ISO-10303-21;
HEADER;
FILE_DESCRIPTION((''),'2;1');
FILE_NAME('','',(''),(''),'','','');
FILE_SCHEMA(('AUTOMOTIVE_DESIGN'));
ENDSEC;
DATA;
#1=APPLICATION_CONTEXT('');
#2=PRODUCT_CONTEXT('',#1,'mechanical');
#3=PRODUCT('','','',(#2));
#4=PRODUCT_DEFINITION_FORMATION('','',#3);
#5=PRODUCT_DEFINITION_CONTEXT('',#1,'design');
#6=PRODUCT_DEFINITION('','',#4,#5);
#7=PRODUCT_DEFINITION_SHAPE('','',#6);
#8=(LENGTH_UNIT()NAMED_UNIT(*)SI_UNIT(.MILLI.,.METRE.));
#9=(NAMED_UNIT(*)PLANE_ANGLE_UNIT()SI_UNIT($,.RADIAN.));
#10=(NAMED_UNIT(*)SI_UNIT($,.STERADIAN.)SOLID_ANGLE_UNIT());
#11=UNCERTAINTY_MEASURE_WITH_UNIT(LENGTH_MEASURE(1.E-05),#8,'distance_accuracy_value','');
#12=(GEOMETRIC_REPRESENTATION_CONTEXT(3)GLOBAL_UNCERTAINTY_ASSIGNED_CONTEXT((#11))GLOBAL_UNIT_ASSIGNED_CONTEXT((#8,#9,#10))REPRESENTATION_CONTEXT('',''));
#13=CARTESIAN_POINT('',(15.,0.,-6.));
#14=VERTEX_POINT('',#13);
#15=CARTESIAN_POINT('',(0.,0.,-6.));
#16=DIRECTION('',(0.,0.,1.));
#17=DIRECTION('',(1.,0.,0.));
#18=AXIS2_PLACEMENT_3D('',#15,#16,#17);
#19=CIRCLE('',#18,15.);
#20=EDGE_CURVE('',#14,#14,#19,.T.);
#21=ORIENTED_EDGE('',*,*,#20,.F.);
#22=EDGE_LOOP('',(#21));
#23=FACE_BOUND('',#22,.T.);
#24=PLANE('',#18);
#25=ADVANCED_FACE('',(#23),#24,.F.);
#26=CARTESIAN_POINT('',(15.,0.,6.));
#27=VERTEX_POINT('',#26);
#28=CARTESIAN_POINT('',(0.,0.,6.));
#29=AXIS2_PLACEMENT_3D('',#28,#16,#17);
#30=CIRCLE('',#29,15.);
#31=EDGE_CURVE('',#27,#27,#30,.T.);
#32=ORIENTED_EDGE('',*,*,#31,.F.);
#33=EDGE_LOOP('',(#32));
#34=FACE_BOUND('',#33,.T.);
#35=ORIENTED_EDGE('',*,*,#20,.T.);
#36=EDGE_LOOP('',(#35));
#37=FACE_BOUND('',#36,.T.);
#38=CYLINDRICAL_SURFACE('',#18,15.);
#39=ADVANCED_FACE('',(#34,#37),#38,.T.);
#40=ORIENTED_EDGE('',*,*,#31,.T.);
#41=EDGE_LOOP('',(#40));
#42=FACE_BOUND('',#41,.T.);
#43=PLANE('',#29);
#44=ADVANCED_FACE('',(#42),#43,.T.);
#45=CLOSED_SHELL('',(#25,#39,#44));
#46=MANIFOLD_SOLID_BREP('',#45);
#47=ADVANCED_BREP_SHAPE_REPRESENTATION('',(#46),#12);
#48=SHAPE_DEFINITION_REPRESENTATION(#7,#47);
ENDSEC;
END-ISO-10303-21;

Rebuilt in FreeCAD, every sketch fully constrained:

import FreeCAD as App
import Part
import Sketcher
from FreeCAD import Vector

doc = App.newDocument("Part")
body = doc.addObject("PartDesign::Body", "Body")

# Sketch on XY plane
sketch1 = doc.addObject("Sketcher::SketchObject", "Sketch")
body.addObject(sketch1)
sketch1.AttachmentSupport = (doc.XY_Plane, [""])
sketch1.MapMode = "FlatFace"
sketch1.AttachmentOffset = App.Placement(Vector(0, 0, 6), App.Rotation())
sketch1.addGeometry(Part.Circle(Vector(0, 0, 0), Vector(0, 0, 1), 15), False)
sketch1.addConstraint([
    Sketcher.Constraint("Coincident", 0, 3, -1, 1),
    Sketcher.Constraint("Diameter", 0, 30.0),
])
pad1 = doc.addObject("PartDesign::Pad", "Pad")
body.addObject(pad1)
pad1.Profile = sketch1
pad1.Length = 12
pad1.Reversed = True

doc.recompute()
